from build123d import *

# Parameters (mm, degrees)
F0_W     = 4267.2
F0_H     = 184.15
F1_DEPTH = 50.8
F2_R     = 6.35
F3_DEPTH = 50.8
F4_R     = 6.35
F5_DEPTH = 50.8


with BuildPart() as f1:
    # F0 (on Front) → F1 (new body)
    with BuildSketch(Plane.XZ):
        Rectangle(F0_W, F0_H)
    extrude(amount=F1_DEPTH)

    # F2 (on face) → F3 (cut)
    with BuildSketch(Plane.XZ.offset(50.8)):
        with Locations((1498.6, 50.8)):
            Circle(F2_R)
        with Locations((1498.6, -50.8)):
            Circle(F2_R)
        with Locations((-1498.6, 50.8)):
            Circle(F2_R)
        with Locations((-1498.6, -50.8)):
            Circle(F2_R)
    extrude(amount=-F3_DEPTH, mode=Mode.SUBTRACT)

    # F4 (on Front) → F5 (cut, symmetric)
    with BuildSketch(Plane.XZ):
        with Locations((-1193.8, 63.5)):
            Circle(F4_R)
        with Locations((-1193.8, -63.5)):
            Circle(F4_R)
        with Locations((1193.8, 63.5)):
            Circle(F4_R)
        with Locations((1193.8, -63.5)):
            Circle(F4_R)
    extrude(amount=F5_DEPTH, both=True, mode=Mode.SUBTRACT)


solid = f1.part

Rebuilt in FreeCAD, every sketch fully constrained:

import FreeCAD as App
import Part
import Sketcher
Q = App.Units.Quantity

doc = App.newDocument("Part")
body = doc.addObject("PartDesign::Body", "Body")

# Sketch on XZ plane
sketch1 = body.newObject("Sketcher::SketchObject", "Sketch")
sketch1.AttachmentSupport = (doc.getObject("XZ_Plane"), [""])
sketch1.MapMode = "FlatFace"
sketch1.addGeometry(Part.LineSegment(App.Vector(-2134, 92, 0), App.Vector(-2134, -92, 0)), False)
sketch1.addGeometry(Part.LineSegment(App.Vector(-2134, -92, 0), App.Vector(2134, -92, 0)), False)
sketch1.addGeometry(Part.LineSegment(App.Vector(2134, -92, 0), App.Vector(2134, 92, 0)), False)
sketch1.addGeometry(Part.LineSegment(App.Vector(2134, 92, 0), App.Vector(-2134, 92, 0)), False)
sketch1.addConstraint(Sketcher.Constraint("Coincident", 0, 2, 1, 1))
sketch1.addConstraint(Sketcher.Constraint("Coincident", 1, 2, 2, 1))
sketch1.addConstraint(Sketcher.Constraint("Coincident", 2, 2, 3, 1))
sketch1.addConstraint(Sketcher.Constraint("Coincident", 3, 2, 0, 1))
sketch1.addConstraint(Sketcher.Constraint("Vertical", 0))
sketch1.addConstraint(Sketcher.Constraint("Horizontal", 1))
sketch1.addConstraint(Sketcher.Constraint("Vertical", 2))
sketch1.addConstraint(Sketcher.Constraint("Horizontal", 3))
sketch1.addConstraint(Sketcher.Constraint("Symmetric", 0, 2, 2, 2, -1, 1))
sketch1.addConstraint(Sketcher.Constraint("DistanceX", 1, 1, 1, 2, Q("168 in")))
sketch1.addConstraint(Sketcher.Constraint("DistanceY", 0, 2, 0, 1, Q("7.25 in")))
pad1 = body.newObject("PartDesign::Pad", "Pad")
pad1.Profile = sketch1
pad1.Length = Q("2 in")

# Sketch on XZ plane
sketch2 = body.newObject("Sketcher::SketchObject", "Sketch001")
sketch2.AttachmentSupport = (doc.getObject("XZ_Plane"), [""])
sketch2.MapMode = "FlatFace"
sketch2.AttachmentOffset = App.Placement(App.Vector(0, 0, 2 * 25.4), App.Rotation())
sketch2.addGeometry(Part.Circle(App.Vector(1499, 51, 0), App.Vector(0, 0, 1), 6), False)
sketch2.addGeometry(Part.Circle(App.Vector(1499, -51, 0), App.Vector(0, 0, 1), 6), False)
sketch2.addGeometry(Part.Circle(App.Vector(-1499, 51, 0), App.Vector(0, 0, 1), 6), False)
sketch2.addGeometry(Part.Circle(App.Vector(-1499, -51, 0), App.Vector(0, 0, 1), 6), False)
sketch2.addConstraint(Sketcher.Constraint("Equal", 0, 1))
sketch2.addConstraint(Sketcher.Constraint("Equal", 1, 2))
sketch2.addConstraint(Sketcher.Constraint("Equal", 2, 3))
sketch2.addConstraint(Sketcher.Constraint("Symmetric", 1, 3, 2, 3, -1, 1))
sketch2.addConstraint(Sketcher.Constraint("Symmetric", 0, 3, 3, 3, -1, 1))
sketch2.addConstraint(Sketcher.Constraint("Symmetric", 0, 3, 2, 3, -2))
sketch2.addConstraint(Sketcher.Constraint("Diameter", 0, Q("0.5 in")))
sketch2.addConstraint(Sketcher.Constraint("DistanceX", -1, 1, 0, 3, Q("59 in")))
sketch2.addConstraint(Sketcher.Constraint("DistanceY", -1, 1, 0, 3, Q("2 in")))
pocket1 = body.newObject("PartDesign::Pocket", "Pocket")
pocket1.Profile = sketch2
pocket1.Length = Q("2 in")

# Sketch on XZ plane
sketch3 = body.newObject("Sketcher::SketchObject", "Sketch002")
sketch3.AttachmentSupport = (doc.getObject("XZ_Plane"), [""])
sketch3.MapMode = "FlatFace"
sketch3.addGeometry(Part.Circle(App.Vector(-1194, 64, 0), App.Vector(0, 0, 1), 6), False)
sketch3.addGeometry(Part.Circle(App.Vector(-1194, -64, 0), App.Vector(0, 0, 1), 6), False)
sketch3.addGeometry(Part.Circle(App.Vector(1194, 64, 0), App.Vector(0, 0, 1), 6), False)
sketch3.addGeometry(Part.Circle(App.Vector(1194, -64, 0), App.Vector(0, 0, 1), 6), False)
sketch3.addConstraint(Sketcher.Constraint("Equal", 0, 1))
sketch3.addConstraint(Sketcher.Constraint("Equal", 1, 2))
sketch3.addConstraint(Sketcher.Constraint("Equal", 2, 3))
sketch3.addConstraint(Sketcher.Constraint("Symmetric", 1, 3, 2, 3, -1, 1))
sketch3.addConstraint(Sketcher.Constraint("Symmetric", 0, 3, 3, 3, -1, 1))
sketch3.addConstraint(Sketcher.Constraint("Symmetric", 0, 3, 2, 3, -2))
sketch3.addConstraint(Sketcher.Constraint("Diameter", 0, Q("0.5 in")))
sketch3.addConstraint(Sketcher.Constraint("DistanceX", 0, 3, -1, 1, Q("47 in")))
sketch3.addConstraint(Sketcher.Constraint("DistanceY", 1, 3, 0, 3, Q("5 in")))
pocket2 = body.newObject("PartDesign::Pocket", "Pocket001")
pocket2.Profile = sketch3
pocket2.Length = Q("4 in")
pocket2.Midplane = True

doc.recompute()
